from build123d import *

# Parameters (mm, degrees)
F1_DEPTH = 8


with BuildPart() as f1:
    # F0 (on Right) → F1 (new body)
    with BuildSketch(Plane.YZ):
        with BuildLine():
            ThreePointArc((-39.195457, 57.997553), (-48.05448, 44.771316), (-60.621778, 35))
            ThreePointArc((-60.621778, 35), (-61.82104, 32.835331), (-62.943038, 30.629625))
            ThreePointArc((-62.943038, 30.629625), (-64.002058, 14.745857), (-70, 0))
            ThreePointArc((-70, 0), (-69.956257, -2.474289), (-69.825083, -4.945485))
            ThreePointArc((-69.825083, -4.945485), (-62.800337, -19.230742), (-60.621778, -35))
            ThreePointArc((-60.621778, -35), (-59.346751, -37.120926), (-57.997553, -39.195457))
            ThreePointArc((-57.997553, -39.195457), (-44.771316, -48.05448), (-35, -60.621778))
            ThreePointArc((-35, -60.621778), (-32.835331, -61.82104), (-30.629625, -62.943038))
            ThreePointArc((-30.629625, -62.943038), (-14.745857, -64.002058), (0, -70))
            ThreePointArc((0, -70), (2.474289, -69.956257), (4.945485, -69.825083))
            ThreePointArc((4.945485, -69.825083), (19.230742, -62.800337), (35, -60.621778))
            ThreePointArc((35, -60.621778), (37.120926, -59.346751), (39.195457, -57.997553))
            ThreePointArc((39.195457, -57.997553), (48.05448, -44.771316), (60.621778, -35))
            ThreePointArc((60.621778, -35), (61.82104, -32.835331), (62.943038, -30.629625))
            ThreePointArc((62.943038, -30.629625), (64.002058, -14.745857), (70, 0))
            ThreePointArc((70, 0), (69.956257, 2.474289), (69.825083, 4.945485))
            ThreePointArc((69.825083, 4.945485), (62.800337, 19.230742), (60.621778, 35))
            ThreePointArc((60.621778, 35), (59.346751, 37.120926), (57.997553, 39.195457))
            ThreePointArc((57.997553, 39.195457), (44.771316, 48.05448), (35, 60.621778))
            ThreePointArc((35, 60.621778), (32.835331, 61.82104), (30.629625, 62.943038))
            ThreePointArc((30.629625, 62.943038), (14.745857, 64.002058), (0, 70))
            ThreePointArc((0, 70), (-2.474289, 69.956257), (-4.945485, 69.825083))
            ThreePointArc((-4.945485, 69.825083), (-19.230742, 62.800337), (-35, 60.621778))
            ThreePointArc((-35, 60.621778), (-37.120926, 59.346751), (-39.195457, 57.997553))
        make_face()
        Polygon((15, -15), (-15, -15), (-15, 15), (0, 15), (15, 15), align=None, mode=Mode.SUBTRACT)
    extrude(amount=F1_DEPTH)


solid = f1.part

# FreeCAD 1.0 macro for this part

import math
import FreeCAD as App
import Part
import Sketcher


def add_polygon(sketch, points):
    """Adds a closed chain of lines whose ends are joined by coincident constraints."""
    first, n = sketch.GeometryCount, len(points)
    for a, b in zip(points, points[1:] + points[:1]):
        sketch.addGeometry(Part.LineSegment(App.Vector(*a, 0), App.Vector(*b, 0)), False)
    for i in range(n):
        sketch.addConstraint(Sketcher.Constraint("Coincident", first + i, 2, first + (i + 1) % n, 1))

doc = App.newDocument("Part")
body = doc.addObject("PartDesign::Body", "Body")

# Sketch on YZ plane
sketch1 = body.newObject("Sketcher::SketchObject", "Sketch")
sketch1.AttachmentSupport = (doc.getObject("YZ_Plane"), [""])
sketch1.MapMode = "FlatFace"
sketch1.addGeometry(Part.ArcOfCircle(Part.Circle(App.Vector(-84.637435, 78.854862, 0), App.Vector(0, 0, 1), 50.000007), math.radians(-61.294149), math.radians(-24.654541)), False)  # 0
sketch1.addGeometry(Part.ArcOfCircle(Part.Circle(App.Vector(0.000157, -0.000083, 0), App.Vector(0, 0, 1), 70.000177), math.radians(150.000006), math.radians(154.051306)), False)  # 1
sketch1.addGeometry(Part.ArcOfCircle(Part.Circle(App.Vector(-112.725589, 25.971594, 0), App.Vector(0, 0, 1), 49.999996), math.radians(-31.294153), math.radians(5.345462)), False)  # 2
sketch1.addGeometry(Part.ArcOfCircle(Part.Circle(App.Vector(0.000222, 0.000004, 0), App.Vector(0, 0, 1), 70.000222), math.radians(-179.999997), math.radians(-175.9487)), False)  # 3
sketch1.addGeometry(Part.ArcOfCircle(Part.Circle(App.Vector(-110.609027, -33.870737, 0), App.Vector(0, 0, 1), 50.000003), math.radians(-1.29415), math.radians(35.345461)), False)  # 4
sketch1.addGeometry(Part.ArcOfCircle(Part.Circle(App.Vector(-0.00015, -0.000098, 0), App.Vector(0, 0, 1), 69.999821), math.radians(-150.000008), math.radians(-145.948688)), False)  # 5
sketch1.addGeometry(Part.ArcOfCircle(Part.Circle(App.Vector(-78.854862, -84.637435, 0), App.Vector(0, 0, 1), 50.000007), math.radians(28.705851), math.radians(65.345459)), False)  # 6
sketch1.addGeometry(Part.ArcOfCircle(Part.Circle(App.Vector(0.000083, 0.000157, 0), App.Vector(0, 0, 1), 70.000177), math.radians(-119.999994), math.radians(-115.948694)), False)  # 7
sketch1.addGeometry(Part.ArcOfCircle(Part.Circle(App.Vector(-25.971594, -112.725589, 0), App.Vector(0, 0, 1), 49.999996), math.radians(58.705847), math.radians(95.345462)), False)  # 8
sketch1.addGeometry(Part.ArcOfCircle(Part.Circle(App.Vector(-0.000004, 0.000222, 0), App.Vector(0, 0, 1), 70.000222), math.radians(-89.999997), math.radians(-85.9487)), False)  # 9
sketch1.addGeometry(Part.ArcOfCircle(Part.Circle(App.Vector(33.870737, -110.609027, 0), App.Vector(0, 0, 1), 50.000003), math.radians(88.70585), math.radians(125.345461)), False)  # 10
sketch1.addGeometry(Part.ArcOfCircle(Part.Circle(App.Vector(0.000098, -0.00015, 0), App.Vector(0, 0, 1), 69.999821), math.radians(-60.000008), math.radians(-55.948688)), False)  # 11
sketch1.addGeometry(Part.ArcOfCircle(Part.Circle(App.Vector(84.637435, -78.854862, 0), App.Vector(0, 0, 1), 50.000007), math.radians(118.705851), math.radians(155.345459)), False)  # 12
sketch1.addGeometry(Part.ArcOfCircle(Part.Circle(App.Vector(-0.000157, 0.000083, 0), App.Vector(0, 0, 1), 70.000177), math.radians(-29.999994), math.radians(-25.948694)), False)  # 13
sketch1.addGeometry(Part.ArcOfCircle(Part.Circle(App.Vector(112.725589, -25.971594, 0), App.Vector(0, 0, 1), 49.999996), math.radians(148.705847), math.radians(185.345462)), False)  # 14
sketch1.addGeometry(Part.ArcOfCircle(Part.Circle(App.Vector(-0.000222, -0.000004, 0), App.Vector(0, 0, 1), 70.000222), math.radians(0.000003), math.radians(4.0513)), False)  # 15
sketch1.addGeometry(Part.ArcOfCircle(Part.Circle(App.Vector(110.609027, 33.870737, 0), App.Vector(0, 0, 1), 50.000003), math.radians(178.70585), math.radians(215.345461)), False)  # 16
sketch1.addGeometry(Part.ArcOfCircle(Part.Circle(App.Vector(0.00015, 0.000098, 0), App.Vector(0, 0, 1), 69.999821), math.radians(29.999992), math.radians(34.051312)), False)  # 17
sketch1.addGeometry(Part.ArcOfCircle(Part.Circle(App.Vector(78.854862, 84.637435, 0), App.Vector(0, 0, 1), 50.000007), math.radians(-151.294149), math.radians(-114.654541)), False)  # 18
sketch1.addGeometry(Part.ArcOfCircle(Part.Circle(App.Vector(-0.000083, -0.000157, 0), App.Vector(0, 0, 1), 70.000177), math.radians(60.000006), math.radians(64.051306)), False)  # 19
sketch1.addGeometry(Part.ArcOfCircle(Part.Circle(App.Vector(25.971594, 112.725589, 0), App.Vector(0, 0, 1), 49.999996), math.radians(-121.294153), math.radians(-84.654538)), False)  # 20
sketch1.addGeometry(Part.ArcOfCircle(Part.Circle(App.Vector(0.000004, -0.000222, 0), App.Vector(0, 0, 1), 70.000222), math.radians(90.000003), math.radians(94.0513)), False)  # 21
sketch1.addGeometry(Part.ArcOfCircle(Part.Circle(App.Vector(-33.870737, 110.609027, 0), App.Vector(0, 0, 1), 50.000003), math.radians(-91.29415), math.radians(-54.654539)), False)  # 22
sketch1.addGeometry(Part.ArcOfCircle(Part.Circle(App.Vector(-0.000098, 0.00015, 0), App.Vector(0, 0, 1), 69.999821), math.radians(119.999992), math.radians(124.051312)), False)  # 23
add_polygon(sketch1, [(15, 15), (15, -15), (-15, -15), (-15, 15)])  # lines 24-27
sketch1.addConstraint([
    Sketcher.Constraint("Coincident", 0, 1, 1, 1),
    Sketcher.Constraint("Coincident", 1, 2, 2, 2),
    Sketcher.Constraint("Coincident", 2, 1, 3, 1),
    Sketcher.Constraint("Coincident", 3, 2, 4, 2),
    Sketcher.Constraint("Coincident", 4, 1, 5, 1),
    Sketcher.Constraint("Coincident", 5, 2, 6, 2),
    Sketcher.Constraint("Coincident", 6, 1, 7, 1),
    Sketcher.Constraint("Coincident", 7, 2, 8, 2),
    Sketcher.Constraint("Coincident", 8, 1, 9, 1),
    Sketcher.Constraint("Coincident", 9, 2, 10, 2),
    Sketcher.Constraint("Coincident", 10, 1, 11, 1),
    Sketcher.Constraint("Coincident", 11, 2, 12, 2),
    Sketcher.Constraint("Coincident", 12, 1, 13, 1),
    Sketcher.Constraint("Coincident", 13, 2, 14, 2),
    Sketcher.Constraint("Coincident", 14, 1, 15, 1),
    Sketcher.Constraint("Coincident", 15, 2, 16, 2),
    Sketcher.Constraint("Coincident", 16, 1, 17, 1),
    Sketcher.Constraint("Coincident", 17, 2, 18, 2),
    Sketcher.Constraint("Coincident", 18, 1, 19, 1),
    Sketcher.Constraint("Coincident", 19, 2, 20, 2),
    Sketcher.Constraint("Coincident", 20, 1, 21, 1),
    Sketcher.Constraint("Coincident", 21, 2, 22, 2),
    Sketcher.Constraint("Coincident", 22, 1, 23, 1),
    Sketcher.Constraint("Coincident", 23, 2, 0, 2),
    Sketcher.Constraint("Vertical", 24),
    Sketcher.Constraint("Horizontal", 25),
    Sketcher.Constraint("Vertical", 26),
    Sketcher.Constraint("Horizontal", 27),
    Sketcher.Constraint("Equal", 0, 6),
    Sketcher.Constraint("Equal", 1, 7),
    Sketcher.Constraint("Equal", 2, 8),
    Sketcher.Constraint("Equal", 3, 9),
    Sketcher.Constraint("Equal", 4, 10),
    Sketcher.Constraint("Equal", 5, 11),
    Sketcher.Constraint("Equal", 6, 12),
    Sketcher.Constraint("Equal", 7, 13),
    Sketcher.Constraint("Equal", 8, 14),
    Sketcher.Constraint("Equal", 9, 15),
    Sketcher.Constraint("Equal", 10, 16),
    Sketcher.Constraint("Equal", 11, 17),
    Sketcher.Constraint("Equal", 12, 18),
    Sketcher.Constraint("Equal", 13, 19),
    Sketcher.Constraint("Equal", 14, 20),
    Sketcher.Constraint("Equal", 15, 21),
    Sketcher.Constraint("Equal", 16, 22),
    Sketcher.Constraint("Equal", 17, 23),
    Sketcher.Constraint("Symmetric", 0, 3, 12, 3, -1, 1),
    Sketcher.Constraint("Symmetric", 1, 3, 13, 3, -1, 1),
    Sketcher.Constraint("Symmetric", 2, 3, 14, 3, -1, 1),
    Sketcher.Constraint("Symmetric", 3, 3, 15, 3, -1, 1),
    Sketcher.Constraint("Symmetric", 4, 3, 16, 3, -1, 1),
    Sketcher.Constraint("Symmetric", 5, 3, 17, 3, -1, 1),
    Sketcher.Constraint("Symmetric", 6, 3, 18, 3, -1, 1),
    Sketcher.Constraint("Symmetric", 7, 3, 19, 3, -1, 1),
    Sketcher.Constraint("Symmetric", 8, 3, 20, 3, -1, 1),
    Sketcher.Constraint("Symmetric", 9, 3, 21, 3, -1, 1),
    Sketcher.Constraint("Symmetric", 10, 3, 22, 3, -1, 1),
    Sketcher.Constraint("Symmetric", 11, 3, 23, 3, -1, 1),
    Sketcher.Constraint("Symmetric", 24, 2, 26, 2, -1, 1),
    Sketcher.Constraint("Symmetric", 6, 1, 10, 1, -2),
    Sketcher.Constraint("Symmetric", 4, 1, 12, 1, -2),
    Sketcher.Constraint("PointOnObject", 2, 1, -1),
    Sketcher.Constraint("PointOnObject", 8, 1, -2),
    Sketcher.Constraint("Equal", 27, 24),
    Sketcher.Constraint("DistanceX", 25, 2, 25, 1, 30.0),
    Sketcher.Constraint("DistanceY", -1, 1, 0, 1, 35.0),
    Sketcher.Constraint("DistanceX", 2, 1, -1, 1, 70.0),
    Sketcher.Constraint("DistanceX", 6, 1, -1, 1, 35.0),
    Sketcher.Constraint("DistanceY", 8, 1, -1, 1, 70.0),
    Sketcher.Constraint("Radius", 3, 70.000222),
    Sketcher.Constraint("Radius", 5, 69.999821),
    Sketcher.Constraint("Radius", 0, 50.000007),
    Sketcher.Constraint("Radius", 1, 70.000177),
    Sketcher.Constraint("Radius", 2, 49.999996),
    Sketcher.Constraint("Radius", 4, 50.000003),
    Sketcher.Constraint("DistanceY", 4, 3, 0, 3, 112.725599),
    Sketcher.Constraint("DistanceX", 6, 3, 10, 3, 112.725599),
    Sketcher.Constraint("DistanceX", 11, 3, 24, 2, 14.999902),
    Sketcher.Constraint("DistanceY", 25, 2, 5, 3, 14.999902),
    Sketcher.Constraint("DistanceY", -1, 1, 0, 3, 78.854862),
    Sketcher.Constraint("DistanceX", 2, 3, -1, 1, 112.725589),
    Sketcher.Constraint("DistanceX", 5, 3, -1, 1, 0.00015),
    Sketcher.Constraint("DistanceX", 6, 3, -1, 1, 78.854862),
    Sketcher.Constraint("DistanceY", 8, 3, -1, 1, 112.725589),
    Sketcher.Constraint("DistanceY", 11, 3, -1, 1, 0.00015),
    Sketcher.Constraint("DistanceX", 0, 3, 1, 3, 84.637592),
    Sketcher.Constraint("DistanceY", 3, 3, 2, 3, 25.97159),
    Sketcher.Constraint("DistanceX", 7, 3, 3, 3, 0.000139),
    Sketcher.Constraint("DistanceX", 9, 3, 1, 3, 0.000161),
])
pad1 = body.newObject("PartDesign::Pad", "Pad")
pad1.Profile = sketch1
pad1.Length = 8

doc.recompute()
